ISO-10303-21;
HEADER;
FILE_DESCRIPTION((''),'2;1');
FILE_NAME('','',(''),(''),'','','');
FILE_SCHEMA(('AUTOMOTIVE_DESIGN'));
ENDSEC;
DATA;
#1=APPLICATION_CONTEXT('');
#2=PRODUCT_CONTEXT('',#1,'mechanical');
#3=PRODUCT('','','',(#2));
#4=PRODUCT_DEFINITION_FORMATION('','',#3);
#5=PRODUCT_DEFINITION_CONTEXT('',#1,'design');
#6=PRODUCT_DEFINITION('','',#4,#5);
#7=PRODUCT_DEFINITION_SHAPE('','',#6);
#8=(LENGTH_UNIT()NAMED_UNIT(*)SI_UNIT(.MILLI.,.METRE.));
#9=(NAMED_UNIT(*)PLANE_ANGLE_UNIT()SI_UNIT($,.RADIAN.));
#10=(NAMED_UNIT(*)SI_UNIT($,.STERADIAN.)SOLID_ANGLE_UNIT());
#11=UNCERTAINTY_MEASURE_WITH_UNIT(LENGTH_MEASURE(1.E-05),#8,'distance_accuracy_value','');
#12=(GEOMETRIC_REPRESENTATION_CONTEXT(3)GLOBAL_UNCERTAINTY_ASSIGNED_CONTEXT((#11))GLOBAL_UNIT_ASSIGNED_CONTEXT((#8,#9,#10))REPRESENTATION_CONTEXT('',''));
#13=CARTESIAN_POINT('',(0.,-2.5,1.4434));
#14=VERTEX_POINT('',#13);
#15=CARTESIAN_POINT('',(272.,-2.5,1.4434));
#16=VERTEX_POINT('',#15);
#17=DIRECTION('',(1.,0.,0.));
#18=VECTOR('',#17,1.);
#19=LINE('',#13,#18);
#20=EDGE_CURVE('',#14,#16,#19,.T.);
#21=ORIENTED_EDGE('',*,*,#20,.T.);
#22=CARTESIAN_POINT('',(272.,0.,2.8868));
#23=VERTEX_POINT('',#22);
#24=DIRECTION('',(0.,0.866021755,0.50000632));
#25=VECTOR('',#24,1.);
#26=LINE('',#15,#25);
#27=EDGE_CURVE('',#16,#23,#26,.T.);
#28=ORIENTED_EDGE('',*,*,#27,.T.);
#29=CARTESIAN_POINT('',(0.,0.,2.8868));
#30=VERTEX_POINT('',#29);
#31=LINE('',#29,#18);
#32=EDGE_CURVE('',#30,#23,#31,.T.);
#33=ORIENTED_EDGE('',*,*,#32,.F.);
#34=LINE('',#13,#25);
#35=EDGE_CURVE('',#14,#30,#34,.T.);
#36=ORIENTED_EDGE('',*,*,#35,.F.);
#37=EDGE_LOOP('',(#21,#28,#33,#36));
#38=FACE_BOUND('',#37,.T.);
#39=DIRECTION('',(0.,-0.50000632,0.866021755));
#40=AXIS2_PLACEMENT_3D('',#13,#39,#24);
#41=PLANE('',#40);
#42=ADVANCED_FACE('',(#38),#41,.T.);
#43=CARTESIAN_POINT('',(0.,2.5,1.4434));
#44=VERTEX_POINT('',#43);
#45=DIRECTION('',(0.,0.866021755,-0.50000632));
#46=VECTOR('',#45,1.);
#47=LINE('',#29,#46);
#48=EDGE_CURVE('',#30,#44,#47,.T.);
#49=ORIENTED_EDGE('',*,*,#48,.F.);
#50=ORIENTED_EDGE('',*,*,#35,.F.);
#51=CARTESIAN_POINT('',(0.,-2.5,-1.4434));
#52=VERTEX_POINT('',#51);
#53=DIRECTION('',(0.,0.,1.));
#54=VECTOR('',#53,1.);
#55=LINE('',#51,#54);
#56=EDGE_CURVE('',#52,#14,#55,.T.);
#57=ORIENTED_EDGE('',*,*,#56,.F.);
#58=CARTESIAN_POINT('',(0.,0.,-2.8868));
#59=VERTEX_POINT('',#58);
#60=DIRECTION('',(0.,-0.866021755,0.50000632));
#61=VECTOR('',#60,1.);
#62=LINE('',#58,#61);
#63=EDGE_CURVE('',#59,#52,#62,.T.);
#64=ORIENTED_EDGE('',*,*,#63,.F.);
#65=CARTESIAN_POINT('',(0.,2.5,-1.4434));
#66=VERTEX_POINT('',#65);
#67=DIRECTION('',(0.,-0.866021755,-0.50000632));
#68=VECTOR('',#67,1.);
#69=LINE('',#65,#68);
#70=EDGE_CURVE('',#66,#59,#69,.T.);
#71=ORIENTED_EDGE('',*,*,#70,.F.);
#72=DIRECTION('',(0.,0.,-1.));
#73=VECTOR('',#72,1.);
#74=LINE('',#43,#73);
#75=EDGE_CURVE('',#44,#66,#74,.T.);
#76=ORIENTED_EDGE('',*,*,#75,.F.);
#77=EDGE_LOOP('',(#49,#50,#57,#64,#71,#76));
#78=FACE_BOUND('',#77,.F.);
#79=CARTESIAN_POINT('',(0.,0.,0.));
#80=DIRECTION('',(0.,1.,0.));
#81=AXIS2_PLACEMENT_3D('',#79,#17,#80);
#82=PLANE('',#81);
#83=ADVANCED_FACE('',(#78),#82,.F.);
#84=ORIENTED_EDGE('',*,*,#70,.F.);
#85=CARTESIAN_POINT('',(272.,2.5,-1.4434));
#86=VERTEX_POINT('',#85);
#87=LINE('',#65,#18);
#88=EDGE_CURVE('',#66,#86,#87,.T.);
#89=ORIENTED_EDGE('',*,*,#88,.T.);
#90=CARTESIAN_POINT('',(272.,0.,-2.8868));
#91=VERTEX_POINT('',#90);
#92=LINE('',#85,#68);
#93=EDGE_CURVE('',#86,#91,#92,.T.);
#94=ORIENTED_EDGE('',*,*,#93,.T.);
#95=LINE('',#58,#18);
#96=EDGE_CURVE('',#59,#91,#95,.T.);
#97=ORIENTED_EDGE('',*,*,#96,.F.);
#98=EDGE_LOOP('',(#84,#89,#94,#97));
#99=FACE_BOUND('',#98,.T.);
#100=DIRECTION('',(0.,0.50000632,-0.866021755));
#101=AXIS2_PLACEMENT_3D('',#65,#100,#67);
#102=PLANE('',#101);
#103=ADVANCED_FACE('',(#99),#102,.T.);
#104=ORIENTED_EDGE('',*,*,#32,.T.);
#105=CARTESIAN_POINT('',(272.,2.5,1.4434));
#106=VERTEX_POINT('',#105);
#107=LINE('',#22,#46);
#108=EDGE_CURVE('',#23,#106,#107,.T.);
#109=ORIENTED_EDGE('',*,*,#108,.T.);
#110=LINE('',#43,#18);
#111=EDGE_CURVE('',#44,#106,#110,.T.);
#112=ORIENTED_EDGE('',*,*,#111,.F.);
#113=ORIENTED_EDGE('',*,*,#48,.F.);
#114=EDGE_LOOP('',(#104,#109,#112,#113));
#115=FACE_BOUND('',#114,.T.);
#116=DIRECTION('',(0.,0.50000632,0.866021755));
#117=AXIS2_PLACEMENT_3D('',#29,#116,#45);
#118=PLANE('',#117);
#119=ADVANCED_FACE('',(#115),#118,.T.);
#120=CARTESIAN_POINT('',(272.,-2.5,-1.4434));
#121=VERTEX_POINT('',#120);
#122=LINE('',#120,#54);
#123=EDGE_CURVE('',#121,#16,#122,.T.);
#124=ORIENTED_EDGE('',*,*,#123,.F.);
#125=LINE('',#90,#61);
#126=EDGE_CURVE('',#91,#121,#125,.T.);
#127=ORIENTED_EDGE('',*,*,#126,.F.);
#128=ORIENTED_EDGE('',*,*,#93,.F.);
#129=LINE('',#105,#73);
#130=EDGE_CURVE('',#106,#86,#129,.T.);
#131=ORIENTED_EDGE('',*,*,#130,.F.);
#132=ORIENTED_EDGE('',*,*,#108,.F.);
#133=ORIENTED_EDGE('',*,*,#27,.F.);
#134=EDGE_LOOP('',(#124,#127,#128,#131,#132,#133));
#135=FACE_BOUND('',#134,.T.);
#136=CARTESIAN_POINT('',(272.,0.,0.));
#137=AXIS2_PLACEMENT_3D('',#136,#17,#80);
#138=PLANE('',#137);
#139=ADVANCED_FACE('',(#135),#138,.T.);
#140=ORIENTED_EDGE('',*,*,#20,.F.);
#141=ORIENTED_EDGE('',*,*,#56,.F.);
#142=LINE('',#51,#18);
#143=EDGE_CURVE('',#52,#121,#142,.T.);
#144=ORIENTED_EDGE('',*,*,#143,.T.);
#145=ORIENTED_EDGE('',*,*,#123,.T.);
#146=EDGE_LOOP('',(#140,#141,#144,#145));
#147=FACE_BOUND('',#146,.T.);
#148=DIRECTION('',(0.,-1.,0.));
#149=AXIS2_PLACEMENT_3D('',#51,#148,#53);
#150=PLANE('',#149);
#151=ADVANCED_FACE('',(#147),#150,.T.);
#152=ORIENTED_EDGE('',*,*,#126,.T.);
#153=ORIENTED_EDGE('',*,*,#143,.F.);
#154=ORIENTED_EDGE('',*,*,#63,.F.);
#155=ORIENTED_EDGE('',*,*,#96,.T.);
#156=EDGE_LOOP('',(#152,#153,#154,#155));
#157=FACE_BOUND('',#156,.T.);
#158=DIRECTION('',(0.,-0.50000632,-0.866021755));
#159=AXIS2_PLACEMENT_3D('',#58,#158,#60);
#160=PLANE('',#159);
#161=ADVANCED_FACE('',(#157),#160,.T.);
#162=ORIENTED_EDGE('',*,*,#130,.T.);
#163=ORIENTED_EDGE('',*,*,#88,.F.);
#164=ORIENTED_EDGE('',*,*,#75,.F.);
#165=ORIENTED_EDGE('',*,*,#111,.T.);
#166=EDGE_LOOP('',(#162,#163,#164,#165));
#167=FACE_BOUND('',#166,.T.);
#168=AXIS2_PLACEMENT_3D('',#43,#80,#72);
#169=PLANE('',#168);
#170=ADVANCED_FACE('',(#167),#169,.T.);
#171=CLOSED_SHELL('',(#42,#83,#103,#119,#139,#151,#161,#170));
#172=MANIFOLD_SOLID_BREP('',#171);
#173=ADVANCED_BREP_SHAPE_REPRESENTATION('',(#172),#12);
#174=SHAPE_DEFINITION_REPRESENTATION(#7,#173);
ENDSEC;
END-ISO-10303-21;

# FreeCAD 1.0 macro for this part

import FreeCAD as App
import Part
import Sketcher

V = App.Vector
Q = App.Units.Quantity


def add_polygon(sketch, points):
    """Adds a closed chain of lines whose ends are joined by coincident constraints."""
    first, n = sketch.GeometryCount, len(points)
    for a, b in zip(points, points[1:] + points[:1]):
        sketch.addGeometry(Part.LineSegment(App.Vector(*a, 0), App.Vector(*b, 0)), False)
    for i in range(n):
        sketch.addConstraint(Sketcher.Constraint("Coincident", first + i, 2, first + (i + 1) % n, 1))

doc = App.newDocument("Part")
body = doc.addObject("PartDesign::Body", "Body")

sketch1 = body.newObject("Sketcher::SketchObject", "Sketch")
sketch1.AttachmentSupport = (doc.getObject("YZ_Plane"), [""])
sketch1.MapMode = "FlatFace"
add_polygon(sketch1, [(0, -2.9), (2.5, -1.4), (2.5, 1.4), (0, 2.9), (-2.5, 1.4), (-2.5, -1.4)])
sketch1.addConstraint([
    Sketcher.Constraint("Vertical", 1),
    Sketcher.Constraint("Vertical", 4),
    Sketcher.Constraint("Symmetric", 0, 2, 3, 2, -1, 1),
    Sketcher.Constraint("Symmetric", 2, 2, 5, 2, -1, 1),
    Sketcher.Constraint("PointOnObject", 2, 2, -2),
    Sketcher.Constraint("Parallel", 2, 5),
    Sketcher.Constraint("Horizontal", 1, 2, 3, 2),
    Sketcher.Constraint("DistanceX", 3, 2, 1, 2, Q("5 mm")),
    Sketcher.Constraint("Angle", 0, Q("30.0004 deg")),
    Sketcher.Constraint("DistanceY", 1, 1, 1, 2, Q("2.8868 mm")),
])
pad1 = body.newObject("PartDesign::Pad", "Pad")
pad1.Profile = sketch1
pad1.Length = 272

doc.recompute()
